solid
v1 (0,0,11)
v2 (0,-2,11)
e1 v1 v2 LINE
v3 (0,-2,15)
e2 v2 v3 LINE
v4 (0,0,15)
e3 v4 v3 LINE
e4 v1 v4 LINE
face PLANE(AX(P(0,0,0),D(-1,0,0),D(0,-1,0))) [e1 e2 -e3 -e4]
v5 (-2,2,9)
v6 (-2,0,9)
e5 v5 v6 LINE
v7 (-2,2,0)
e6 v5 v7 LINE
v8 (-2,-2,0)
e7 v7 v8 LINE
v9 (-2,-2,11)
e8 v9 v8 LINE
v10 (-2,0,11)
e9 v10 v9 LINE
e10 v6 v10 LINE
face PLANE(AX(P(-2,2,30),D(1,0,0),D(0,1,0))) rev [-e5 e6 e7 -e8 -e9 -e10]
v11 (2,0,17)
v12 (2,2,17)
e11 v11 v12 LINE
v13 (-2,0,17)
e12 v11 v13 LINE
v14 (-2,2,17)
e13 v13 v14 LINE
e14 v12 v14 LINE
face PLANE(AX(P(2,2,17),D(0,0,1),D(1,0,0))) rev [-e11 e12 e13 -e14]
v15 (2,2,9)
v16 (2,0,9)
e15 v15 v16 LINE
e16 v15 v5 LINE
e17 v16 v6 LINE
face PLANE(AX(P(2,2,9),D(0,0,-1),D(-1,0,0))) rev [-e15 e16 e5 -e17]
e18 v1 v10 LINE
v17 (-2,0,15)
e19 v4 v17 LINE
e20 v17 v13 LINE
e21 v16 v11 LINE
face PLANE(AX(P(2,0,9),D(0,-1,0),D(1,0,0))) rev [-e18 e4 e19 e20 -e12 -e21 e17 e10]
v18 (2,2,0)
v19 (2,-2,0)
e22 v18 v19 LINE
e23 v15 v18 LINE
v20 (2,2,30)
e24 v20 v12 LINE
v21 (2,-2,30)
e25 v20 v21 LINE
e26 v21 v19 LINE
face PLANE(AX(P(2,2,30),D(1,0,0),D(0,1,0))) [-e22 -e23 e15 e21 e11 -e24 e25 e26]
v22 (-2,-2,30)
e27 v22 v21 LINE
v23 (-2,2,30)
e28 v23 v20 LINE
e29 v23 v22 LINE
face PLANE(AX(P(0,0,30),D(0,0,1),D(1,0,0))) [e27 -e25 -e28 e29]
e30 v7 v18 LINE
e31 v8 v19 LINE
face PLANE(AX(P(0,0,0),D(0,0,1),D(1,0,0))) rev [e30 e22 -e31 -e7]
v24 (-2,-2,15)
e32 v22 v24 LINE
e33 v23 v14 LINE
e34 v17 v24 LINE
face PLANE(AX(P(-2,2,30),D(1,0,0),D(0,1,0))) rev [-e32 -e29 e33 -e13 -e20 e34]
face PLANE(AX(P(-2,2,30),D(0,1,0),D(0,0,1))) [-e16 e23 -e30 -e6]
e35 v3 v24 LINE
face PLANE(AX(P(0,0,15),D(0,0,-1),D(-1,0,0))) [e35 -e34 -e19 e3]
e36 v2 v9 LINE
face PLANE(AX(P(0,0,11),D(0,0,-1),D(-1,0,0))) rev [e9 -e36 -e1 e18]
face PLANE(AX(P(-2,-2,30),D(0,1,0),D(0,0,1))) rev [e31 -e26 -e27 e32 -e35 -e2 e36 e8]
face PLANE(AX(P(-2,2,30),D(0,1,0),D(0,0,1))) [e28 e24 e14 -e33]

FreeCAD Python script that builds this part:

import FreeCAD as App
import Part
import Sketcher

V = App.Vector
Q = App.Units.Quantity

doc = App.newDocument("Part")
body = doc.addObject("PartDesign::Body", "Body")

# Sketch on XY plane
sketch1 = doc.addObject("Sketcher::SketchObject", "Sketch")
body.addObject(sketch1)
sketch1.AttachmentSupport = (doc.XY_Plane, [""])
sketch1.MapMode = "FlatFace"
sketch1.addGeometry([
    Part.LineSegment(V(-2, 2, 0), V(-2, -2, 0)),
    Part.LineSegment(V(-2, -2, 0), V(2, -2, 0)),
    Part.LineSegment(V(2, -2, 0), V(2, 2, 0)),
    Part.LineSegment(V(2, 2, 0), V(-2, 2, 0)),
], False)
sketch1.addConstraint([
    Sketcher.Constraint("Coincident", 0, 2, 1, 1),
    Sketcher.Constraint("Coincident", 1, 2, 2, 1),
    Sketcher.Constraint("Coincident", 2, 2, 3, 1),
    Sketcher.Constraint("Coincident", 3, 2, 0, 1),
    Sketcher.Constraint("Vertical", 0),
    Sketcher.Constraint("Horizontal", 1),
    Sketcher.Constraint("Vertical", 2),
    Sketcher.Constraint("Horizontal", 3),
    Sketcher.Constraint("Symmetric", 0, 2, 2, 2, -1, 1),
    Sketcher.Constraint("Equal", 3, 0),
    Sketcher.Constraint("DistanceX", 1, 1, 1, 2, Q("4 mm")),
])
pad1 = doc.addObject("PartDesign::Pad", "Pad")
body.addObject(pad1)
pad1.Profile = sketch1
pad1.Length = 30

# Sketch on YZ plane
sketch2 = doc.addObject("Sketcher::SketchObject", "Sketch001")
body.addObject(sketch2)
sketch2.AttachmentSupport = (doc.YZ_Plane, [""])
sketch2.MapMode = "FlatFace"
sketch2.AttachmentOffset = App.Placement(V(0, 0, -2), App.Rotation())
sketch2.addGeometry([
    Part.LineSegment(V(2, 9, 0), V(0, 9, 0)),
    Part.LineSegment(V(0, 9, 0), V(0, 17, 0)),
    Part.LineSegment(V(0, 17, 0), V(2, 17, 0)),
    Part.LineSegment(V(2, 17, 0), V(2, 9, 0)),
], False)
sketch2.addConstraint([
    Sketcher.Constraint("Coincident", 0, 2, 1, 1),
    Sketcher.Constraint("Coincident", 1, 2, 2, 1),
    Sketcher.Constraint("Coincident", 2, 2, 3, 1),
    Sketcher.Constraint("Coincident", 3, 2, 0, 1),
    Sketcher.Constraint("Horizontal", 0),
    Sketcher.Constraint("Vertical", 1),
    Sketcher.Constraint("Horizontal", 2),
    Sketcher.Constraint("Vertical", 3),
    Sketcher.Constraint("PointOnObject", 0, 2, -2),
    Sketcher.Constraint("DistanceX", 0, 2, 0, 1, Q("2 mm")),
    Sketcher.Constraint("DistanceY", 1, 1, 1, 2, Q("8 mm")),
    Sketcher.Constraint("DistanceY", -1, 1, 0, 2, Q("9 mm")),
])
pocket1 = doc.addObject("PartDesign::Pocket", "Pocket")
body.addObject(pocket1)
pocket1.Profile = sketch2
pocket1.Length = 4
pocket1.Reversed = True

# Sketch on YZ plane
sketch3 = doc.addObject("Sketcher::SketchObject", "Sketch002")
body.addObject(sketch3)
sketch3.AttachmentSupport = (doc.YZ_Plane, [""])
sketch3.MapMode = "FlatFace"
sketch3.AttachmentOffset = App.Placement(V(0, 0, -2), App.Rotation())
sketch3.addGeometry([
    Part.LineSegment(V(0, 11, 0), V(-2, 11, 0)),
    Part.LineSegment(V(-2, 11, 0), V(-2, 15, 0)),
    Part.LineSegment(V(-2, 15, 0), V(0, 15, 0)),
    Part.LineSegment(V(0, 15, 0), V(0, 11, 0)),
], False)
sketch3.addConstraint([
    Sketcher.Constraint("Coincident", 0, 2, 1, 1),
    Sketcher.Constraint("Coincident", 1, 2, 2, 1),
    Sketcher.Constraint("Coincident", 2, 2, 3, 1),
    Sketcher.Constraint("Coincident", 3, 2, 0, 1),
    Sketcher.Constraint("Horizontal", 0),
    Sketcher.Constraint("Vertical", 1),
    Sketcher.Constraint("Horizontal", 2),
    Sketcher.Constraint("Vertical", 3),
    Sketcher.Constraint("PointOnObject", 2, 2, -2),
    Sketcher.Constraint("DistanceX", 0, 2, 0, 1, Q("2 mm")),
    Sketcher.Constraint("DistanceY", 1, 1, 1, 2, Q("4 mm")),
    Sketcher.Constraint("DistanceY", -1, 1, 0, 2, Q("11 mm")),
])
pocket2 = doc.addObject("PartDesign::Pocket", "Pocket001")
body.addObject(pocket2)
pocket2.Profile = sketch3
pocket2.Length = 2
pocket2.Reversed = True

doc.recompute()
